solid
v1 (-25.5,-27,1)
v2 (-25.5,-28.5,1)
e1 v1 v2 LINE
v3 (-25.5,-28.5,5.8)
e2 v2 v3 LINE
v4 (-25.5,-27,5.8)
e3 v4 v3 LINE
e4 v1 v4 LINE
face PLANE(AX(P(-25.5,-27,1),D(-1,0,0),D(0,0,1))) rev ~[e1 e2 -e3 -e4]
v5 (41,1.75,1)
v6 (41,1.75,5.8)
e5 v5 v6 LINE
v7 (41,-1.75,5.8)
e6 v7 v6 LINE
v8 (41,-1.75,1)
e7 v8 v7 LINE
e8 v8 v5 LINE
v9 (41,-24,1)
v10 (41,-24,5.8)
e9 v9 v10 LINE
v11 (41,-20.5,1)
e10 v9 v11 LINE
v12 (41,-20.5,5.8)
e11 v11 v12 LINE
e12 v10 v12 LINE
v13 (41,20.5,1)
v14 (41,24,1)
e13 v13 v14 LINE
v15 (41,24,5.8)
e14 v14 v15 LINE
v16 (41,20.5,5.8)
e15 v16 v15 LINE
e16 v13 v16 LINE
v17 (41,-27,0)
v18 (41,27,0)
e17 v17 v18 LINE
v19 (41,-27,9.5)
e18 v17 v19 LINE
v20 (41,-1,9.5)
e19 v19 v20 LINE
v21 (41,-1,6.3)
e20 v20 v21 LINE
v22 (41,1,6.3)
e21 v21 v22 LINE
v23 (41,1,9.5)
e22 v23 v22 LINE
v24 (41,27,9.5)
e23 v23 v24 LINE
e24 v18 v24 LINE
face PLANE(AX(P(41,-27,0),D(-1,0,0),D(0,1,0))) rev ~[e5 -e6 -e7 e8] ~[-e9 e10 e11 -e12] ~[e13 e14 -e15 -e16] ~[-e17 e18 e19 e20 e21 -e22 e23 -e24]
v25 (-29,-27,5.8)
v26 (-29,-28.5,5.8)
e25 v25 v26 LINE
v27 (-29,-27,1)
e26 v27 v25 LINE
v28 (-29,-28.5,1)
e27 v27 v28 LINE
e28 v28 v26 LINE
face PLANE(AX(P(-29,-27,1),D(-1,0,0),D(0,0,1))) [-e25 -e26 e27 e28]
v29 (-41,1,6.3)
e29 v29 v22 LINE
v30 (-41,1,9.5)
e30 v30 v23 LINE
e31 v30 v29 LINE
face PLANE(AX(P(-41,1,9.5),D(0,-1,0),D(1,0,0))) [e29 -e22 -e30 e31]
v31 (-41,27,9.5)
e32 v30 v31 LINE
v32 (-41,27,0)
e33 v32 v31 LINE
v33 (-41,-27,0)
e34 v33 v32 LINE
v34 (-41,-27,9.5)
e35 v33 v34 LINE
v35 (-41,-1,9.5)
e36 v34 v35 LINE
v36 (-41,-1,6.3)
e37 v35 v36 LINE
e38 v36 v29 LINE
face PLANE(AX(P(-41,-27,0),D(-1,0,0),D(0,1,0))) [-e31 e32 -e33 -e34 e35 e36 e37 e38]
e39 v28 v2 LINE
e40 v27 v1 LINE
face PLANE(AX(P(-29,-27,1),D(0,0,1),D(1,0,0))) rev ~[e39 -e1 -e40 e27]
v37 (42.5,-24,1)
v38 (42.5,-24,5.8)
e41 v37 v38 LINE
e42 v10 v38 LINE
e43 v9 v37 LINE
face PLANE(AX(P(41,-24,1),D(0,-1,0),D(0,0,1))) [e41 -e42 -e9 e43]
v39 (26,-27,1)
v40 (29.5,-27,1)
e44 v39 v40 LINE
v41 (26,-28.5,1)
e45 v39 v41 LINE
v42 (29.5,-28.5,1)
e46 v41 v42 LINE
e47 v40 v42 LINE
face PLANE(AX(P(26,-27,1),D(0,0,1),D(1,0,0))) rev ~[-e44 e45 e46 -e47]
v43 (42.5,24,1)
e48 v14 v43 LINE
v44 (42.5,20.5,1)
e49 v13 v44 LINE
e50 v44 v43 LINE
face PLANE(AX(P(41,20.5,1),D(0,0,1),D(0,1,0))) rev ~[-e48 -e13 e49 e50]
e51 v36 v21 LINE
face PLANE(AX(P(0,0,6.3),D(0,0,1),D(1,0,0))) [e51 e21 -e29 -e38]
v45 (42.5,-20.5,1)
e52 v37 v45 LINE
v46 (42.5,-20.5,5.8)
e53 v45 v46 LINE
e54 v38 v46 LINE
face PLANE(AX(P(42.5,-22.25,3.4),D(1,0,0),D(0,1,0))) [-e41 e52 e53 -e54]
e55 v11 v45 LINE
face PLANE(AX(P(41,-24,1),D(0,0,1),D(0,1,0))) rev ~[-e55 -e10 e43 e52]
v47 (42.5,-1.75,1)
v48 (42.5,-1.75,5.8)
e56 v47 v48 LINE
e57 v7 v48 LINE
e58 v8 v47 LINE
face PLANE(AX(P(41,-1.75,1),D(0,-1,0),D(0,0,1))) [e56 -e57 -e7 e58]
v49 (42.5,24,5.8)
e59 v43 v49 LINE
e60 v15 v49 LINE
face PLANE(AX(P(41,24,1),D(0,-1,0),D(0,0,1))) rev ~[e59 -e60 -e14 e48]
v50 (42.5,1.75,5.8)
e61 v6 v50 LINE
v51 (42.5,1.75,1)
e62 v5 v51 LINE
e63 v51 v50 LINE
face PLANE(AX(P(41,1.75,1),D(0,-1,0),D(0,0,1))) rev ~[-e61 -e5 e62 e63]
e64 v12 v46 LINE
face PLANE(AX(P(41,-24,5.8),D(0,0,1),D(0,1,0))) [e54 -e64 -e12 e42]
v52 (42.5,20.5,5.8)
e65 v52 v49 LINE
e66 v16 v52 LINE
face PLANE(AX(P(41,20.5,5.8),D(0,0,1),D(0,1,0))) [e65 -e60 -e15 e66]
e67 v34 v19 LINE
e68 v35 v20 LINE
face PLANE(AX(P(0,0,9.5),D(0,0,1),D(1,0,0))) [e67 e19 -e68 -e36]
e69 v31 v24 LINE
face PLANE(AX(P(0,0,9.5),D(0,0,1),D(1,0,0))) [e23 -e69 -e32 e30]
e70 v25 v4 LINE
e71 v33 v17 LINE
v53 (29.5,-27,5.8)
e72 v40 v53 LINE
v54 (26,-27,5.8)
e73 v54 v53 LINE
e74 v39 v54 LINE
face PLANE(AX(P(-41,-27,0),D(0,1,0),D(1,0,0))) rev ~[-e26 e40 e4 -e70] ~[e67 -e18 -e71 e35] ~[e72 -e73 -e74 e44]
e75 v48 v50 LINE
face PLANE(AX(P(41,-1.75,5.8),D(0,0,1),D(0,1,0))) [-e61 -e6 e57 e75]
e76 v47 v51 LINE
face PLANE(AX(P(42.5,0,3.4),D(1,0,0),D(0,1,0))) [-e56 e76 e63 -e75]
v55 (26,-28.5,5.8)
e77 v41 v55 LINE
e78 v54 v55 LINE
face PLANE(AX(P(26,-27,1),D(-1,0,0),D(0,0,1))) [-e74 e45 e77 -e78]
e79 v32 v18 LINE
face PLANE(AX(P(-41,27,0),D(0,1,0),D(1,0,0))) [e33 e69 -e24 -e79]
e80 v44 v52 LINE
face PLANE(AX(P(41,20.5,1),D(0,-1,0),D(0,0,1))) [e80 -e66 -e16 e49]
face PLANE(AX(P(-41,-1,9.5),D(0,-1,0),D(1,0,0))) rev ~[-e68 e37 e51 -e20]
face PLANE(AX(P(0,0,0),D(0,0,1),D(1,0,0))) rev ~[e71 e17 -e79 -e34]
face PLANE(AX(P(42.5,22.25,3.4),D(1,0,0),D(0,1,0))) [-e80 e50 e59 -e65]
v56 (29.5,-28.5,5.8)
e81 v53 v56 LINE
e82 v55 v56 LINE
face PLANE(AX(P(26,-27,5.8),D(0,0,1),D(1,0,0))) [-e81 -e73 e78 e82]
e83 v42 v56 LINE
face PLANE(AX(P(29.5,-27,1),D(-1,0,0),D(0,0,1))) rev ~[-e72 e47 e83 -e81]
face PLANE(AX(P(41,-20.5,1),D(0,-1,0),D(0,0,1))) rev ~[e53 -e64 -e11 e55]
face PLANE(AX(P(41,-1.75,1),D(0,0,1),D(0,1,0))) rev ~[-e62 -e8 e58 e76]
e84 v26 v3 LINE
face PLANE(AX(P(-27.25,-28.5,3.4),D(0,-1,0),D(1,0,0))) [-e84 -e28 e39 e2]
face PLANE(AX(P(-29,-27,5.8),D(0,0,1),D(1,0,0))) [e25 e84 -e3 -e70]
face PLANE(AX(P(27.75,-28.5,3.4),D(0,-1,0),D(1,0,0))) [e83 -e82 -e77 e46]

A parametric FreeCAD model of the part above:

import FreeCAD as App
import Part
import Sketcher
from FreeCAD import Vector
Q = App.Units.Quantity


def add_polygon(sketch, points):
    """Adds a closed chain of lines whose ends are joined by coincident constraints."""
    first, n = sketch.GeometryCount, len(points)
    for a, b in zip(points, points[1:] + points[:1]):
        sketch.addGeometry(Part.LineSegment(App.Vector(*a, 0), App.Vector(*b, 0)), False)
    for i in range(n):
        sketch.addConstraint(Sketcher.Constraint("Coincident", first + i, 2, first + (i + 1) % n, 1))

doc = App.newDocument("Part")
params = doc.addObject("Spreadsheet::Sheet", "Params")
for row, (alias, value) in enumerate([
    ("sketch1_width", "82 mm"),
    ("sketch1_height", "54 mm"),
    ("pad1_length", "9.5 mm"),
    ("sketch2_width", "82 mm"),
    ("sketch2_height", "2 mm"),
    ("pocket1_length", "3.2 mm"),
    ("sketch3_width", "3.5 mm"),
    ("sketch3_height", "4.8 mm"),
    ("pad2_length", "1.5 mm"),
    ("sketch4_width", "3.5 mm"),
    ("sketch4_height", "4.8 mm"),
    ("pad3_length", "1.5 mm"),
], start=1):
    params.set(f"A{row}", alias)
    params.set(f"B{row}", "=" + value)
    params.setAlias(f"B{row}", alias)

body = doc.addObject("PartDesign::Body", "Body")

# Sketch on XY plane
sketch1 = body.newObject("Sketcher::SketchObject", "Sketch")
sketch1.AttachmentSupport = (doc.getObject("XY_Plane"), [""])
sketch1.MapMode = "FlatFace"
add_polygon(sketch1, [(-41, 27), (-41, -27), (41, -27), (41, 27)])  # lines 0-3
sketch1.addConstraint([
    Sketcher.Constraint("Vertical", 0),
    Sketcher.Constraint("Horizontal", 1),
    Sketcher.Constraint("Vertical", 2),
    Sketcher.Constraint("Horizontal", 3),
    Sketcher.Constraint("Symmetric", 0, 2, 2, 2, -1, 1),
    Sketcher.Constraint("DistanceX", 1, 1, 1, 2, Q("82 mm")),
    Sketcher.Constraint("DistanceY", 0, 2, 0, 1, Q("54 mm")),
])
sketch1.setExpression("Constraints[9]", "Params.sketch1_width")
sketch1.setExpression("Constraints[10]", "Params.sketch1_height")
pad1 = body.newObject("PartDesign::Pad", "Pad")
pad1.Profile = sketch1
pad1.setExpression("Length", "Params.pad1_length")

# Sketch on XY plane
sketch2 = body.newObject("Sketcher::SketchObject", "Sketch001")
sketch2.AttachmentSupport = (doc.getObject("XY_Plane"), [""])
sketch2.MapMode = "FlatFace"
sketch2.AttachmentOffset = App.Placement(Vector(0, 0, 9.5), App.Rotation())
add_polygon(sketch2, [(-41, 1), (-41, -1), (41, -1), (41, 1)])  # lines 0-3
sketch2.addConstraint([
    Sketcher.Constraint("Vertical", 0),
    Sketcher.Constraint("Horizontal", 1),
    Sketcher.Constraint("Vertical", 2),
    Sketcher.Constraint("Horizontal", 3),
    Sketcher.Constraint("Symmetric", 0, 2, 2, 2, -1, 1),
    Sketcher.Constraint("DistanceX", 1, 1, 1, 2, Q("82 mm")),
    Sketcher.Constraint("DistanceY", 0, 2, 0, 1, Q("2 mm")),
])
sketch2.setExpression("Constraints[9]", "Params.sketch2_width")
sketch2.setExpression("Constraints[10]", "Params.sketch2_height")
pocket1 = body.newObject("PartDesign::Pocket", "Pocket")
pocket1.Profile = sketch2
pocket1.setExpression("Length", "Params.pocket1_length")

# Sketch on XZ plane
sketch3 = body.newObject("Sketcher::SketchObject", "Sketch002")
sketch3.AttachmentSupport = (doc.getObject("XZ_Plane"), [""])
sketch3.MapMode = "FlatFace"
sketch3.AttachmentOffset = App.Placement(Vector(0, 0, 27), App.Rotation())
add_polygon(sketch3, [(26, 5.8), (26, 1), (29.5, 1), (29.5, 5.8)])  # lines 0-3
add_polygon(sketch3, [(-29, 5.8), (-29, 1), (-25.5, 1), (-25.5, 5.8)])  # lines 4-7
sketch3.addConstraint([
    Sketcher.Constraint("Vertical", 0),
    Sketcher.Constraint("Horizontal", 1),
    Sketcher.Constraint("Vertical", 2),
    Sketcher.Constraint("Horizontal", 3),
    Sketcher.Constraint("Vertical", 4),
    Sketcher.Constraint("Horizontal", 5),
    Sketcher.Constraint("Vertical", 6),
    Sketcher.Constraint("Horizontal", 7),
    Sketcher.Constraint("Horizontal", 1, 2, 4, 2),
    Sketcher.Constraint("Horizontal", 3, 2, 6, 2),
    Sketcher.Constraint("Equal", 3, 5),
    Sketcher.Constraint("DistanceX", 1, 1, 1, 2, Q("3.5 mm")),
    Sketcher.Constraint("DistanceY", 0, 2, 0, 1, Q("4.8 mm")),
    Sketcher.Constraint("DistanceX", -1, 1, 0, 2, Q("26 mm")),
    Sketcher.Constraint("DistanceY", -1, 1, 0, 2, Q("1 mm")),
    Sketcher.Constraint("DistanceX", 4, 2, -1, 1, Q("29 mm")),
])
sketch3.setExpression("Constraints[19]", "Params.sketch3_width")
sketch3.setExpression("Constraints[20]", "Params.sketch3_height")
pad2 = body.newObject("PartDesign::Pad", "Pad001")
pad2.Profile = sketch3
pad2.setExpression("Length", "Params.pad2_length")

# Sketch on YZ plane
sketch4 = body.newObject("Sketcher::SketchObject", "Sketch003")
sketch4.AttachmentSupport = (doc.getObject("YZ_Plane"), [""])
sketch4.MapMode = "FlatFace"
sketch4.AttachmentOffset = App.Placement(Vector(0, 0, 41), App.Rotation())
add_polygon(sketch4, [(-24, 5.8), (-24, 1), (-20.5, 1), (-20.5, 5.8)])  # lines 0-3
add_polygon(sketch4, [(-1.8, 5.8), (-1.8, 1), (1.8, 1), (1.8, 5.8)])  # lines 4-7
add_polygon(sketch4, [(20.5, 5.8), (20.5, 1), (24, 1), (24, 5.8)])  # lines 8-11
sketch4.addConstraint([
    Sketcher.Constraint("Vertical", 0),
    Sketcher.Constraint("Horizontal", 1),
    Sketcher.Constraint("Vertical", 2),
    Sketcher.Constraint("Horizontal", 3),
    Sketcher.Constraint("Vertical", 4),
    Sketcher.Constraint("Horizontal", 5),
    Sketcher.Constraint("Vertical", 6),
    Sketcher.Constraint("Horizontal", 7),
    Sketcher.Constraint("Vertical", 8),
    Sketcher.Constraint("Horizontal", 9),
    Sketcher.Constraint("Vertical", 10),
    Sketcher.Constraint("Horizontal", 11),
    Sketcher.Constraint("Symmetric", 1, 2, 8, 2, -2),
    Sketcher.Constraint("Symmetric", 3, 2, 10, 2, -2),
    Sketcher.Constraint("Horizontal", 1, 2, 4, 2),
    Sketcher.Constraint("Horizontal", 3, 2, 6, 2),
    Sketcher.Constraint("Equal", 3, 5),
    Sketcher.Constraint("DistanceX", 1, 1, 1, 2, Q("3.5 mm")),
    Sketcher.Constraint("DistanceY", 0, 2, 0, 1, Q("4.8 mm")),
    Sketcher.Constraint("DistanceX", 0, 2, -1, 1, Q("24 mm")),
    Sketcher.Constraint("DistanceY", -1, 1, 0, 2, Q("1 mm")),
    Sketcher.Constraint("DistanceX", 4, 2, -1, 1, Q("1.75 mm")),
])
sketch4.setExpression("Constraints[29]", "Params.sketch4_width")
sketch4.setExpression("Constraints[30]", "Params.sketch4_height")
pad3 = body.newObject("PartDesign::Pad", "Pad002")
pad3.Profile = sketch4
pad3.setExpression("Length", "Params.pad3_length")

doc.recompute()
